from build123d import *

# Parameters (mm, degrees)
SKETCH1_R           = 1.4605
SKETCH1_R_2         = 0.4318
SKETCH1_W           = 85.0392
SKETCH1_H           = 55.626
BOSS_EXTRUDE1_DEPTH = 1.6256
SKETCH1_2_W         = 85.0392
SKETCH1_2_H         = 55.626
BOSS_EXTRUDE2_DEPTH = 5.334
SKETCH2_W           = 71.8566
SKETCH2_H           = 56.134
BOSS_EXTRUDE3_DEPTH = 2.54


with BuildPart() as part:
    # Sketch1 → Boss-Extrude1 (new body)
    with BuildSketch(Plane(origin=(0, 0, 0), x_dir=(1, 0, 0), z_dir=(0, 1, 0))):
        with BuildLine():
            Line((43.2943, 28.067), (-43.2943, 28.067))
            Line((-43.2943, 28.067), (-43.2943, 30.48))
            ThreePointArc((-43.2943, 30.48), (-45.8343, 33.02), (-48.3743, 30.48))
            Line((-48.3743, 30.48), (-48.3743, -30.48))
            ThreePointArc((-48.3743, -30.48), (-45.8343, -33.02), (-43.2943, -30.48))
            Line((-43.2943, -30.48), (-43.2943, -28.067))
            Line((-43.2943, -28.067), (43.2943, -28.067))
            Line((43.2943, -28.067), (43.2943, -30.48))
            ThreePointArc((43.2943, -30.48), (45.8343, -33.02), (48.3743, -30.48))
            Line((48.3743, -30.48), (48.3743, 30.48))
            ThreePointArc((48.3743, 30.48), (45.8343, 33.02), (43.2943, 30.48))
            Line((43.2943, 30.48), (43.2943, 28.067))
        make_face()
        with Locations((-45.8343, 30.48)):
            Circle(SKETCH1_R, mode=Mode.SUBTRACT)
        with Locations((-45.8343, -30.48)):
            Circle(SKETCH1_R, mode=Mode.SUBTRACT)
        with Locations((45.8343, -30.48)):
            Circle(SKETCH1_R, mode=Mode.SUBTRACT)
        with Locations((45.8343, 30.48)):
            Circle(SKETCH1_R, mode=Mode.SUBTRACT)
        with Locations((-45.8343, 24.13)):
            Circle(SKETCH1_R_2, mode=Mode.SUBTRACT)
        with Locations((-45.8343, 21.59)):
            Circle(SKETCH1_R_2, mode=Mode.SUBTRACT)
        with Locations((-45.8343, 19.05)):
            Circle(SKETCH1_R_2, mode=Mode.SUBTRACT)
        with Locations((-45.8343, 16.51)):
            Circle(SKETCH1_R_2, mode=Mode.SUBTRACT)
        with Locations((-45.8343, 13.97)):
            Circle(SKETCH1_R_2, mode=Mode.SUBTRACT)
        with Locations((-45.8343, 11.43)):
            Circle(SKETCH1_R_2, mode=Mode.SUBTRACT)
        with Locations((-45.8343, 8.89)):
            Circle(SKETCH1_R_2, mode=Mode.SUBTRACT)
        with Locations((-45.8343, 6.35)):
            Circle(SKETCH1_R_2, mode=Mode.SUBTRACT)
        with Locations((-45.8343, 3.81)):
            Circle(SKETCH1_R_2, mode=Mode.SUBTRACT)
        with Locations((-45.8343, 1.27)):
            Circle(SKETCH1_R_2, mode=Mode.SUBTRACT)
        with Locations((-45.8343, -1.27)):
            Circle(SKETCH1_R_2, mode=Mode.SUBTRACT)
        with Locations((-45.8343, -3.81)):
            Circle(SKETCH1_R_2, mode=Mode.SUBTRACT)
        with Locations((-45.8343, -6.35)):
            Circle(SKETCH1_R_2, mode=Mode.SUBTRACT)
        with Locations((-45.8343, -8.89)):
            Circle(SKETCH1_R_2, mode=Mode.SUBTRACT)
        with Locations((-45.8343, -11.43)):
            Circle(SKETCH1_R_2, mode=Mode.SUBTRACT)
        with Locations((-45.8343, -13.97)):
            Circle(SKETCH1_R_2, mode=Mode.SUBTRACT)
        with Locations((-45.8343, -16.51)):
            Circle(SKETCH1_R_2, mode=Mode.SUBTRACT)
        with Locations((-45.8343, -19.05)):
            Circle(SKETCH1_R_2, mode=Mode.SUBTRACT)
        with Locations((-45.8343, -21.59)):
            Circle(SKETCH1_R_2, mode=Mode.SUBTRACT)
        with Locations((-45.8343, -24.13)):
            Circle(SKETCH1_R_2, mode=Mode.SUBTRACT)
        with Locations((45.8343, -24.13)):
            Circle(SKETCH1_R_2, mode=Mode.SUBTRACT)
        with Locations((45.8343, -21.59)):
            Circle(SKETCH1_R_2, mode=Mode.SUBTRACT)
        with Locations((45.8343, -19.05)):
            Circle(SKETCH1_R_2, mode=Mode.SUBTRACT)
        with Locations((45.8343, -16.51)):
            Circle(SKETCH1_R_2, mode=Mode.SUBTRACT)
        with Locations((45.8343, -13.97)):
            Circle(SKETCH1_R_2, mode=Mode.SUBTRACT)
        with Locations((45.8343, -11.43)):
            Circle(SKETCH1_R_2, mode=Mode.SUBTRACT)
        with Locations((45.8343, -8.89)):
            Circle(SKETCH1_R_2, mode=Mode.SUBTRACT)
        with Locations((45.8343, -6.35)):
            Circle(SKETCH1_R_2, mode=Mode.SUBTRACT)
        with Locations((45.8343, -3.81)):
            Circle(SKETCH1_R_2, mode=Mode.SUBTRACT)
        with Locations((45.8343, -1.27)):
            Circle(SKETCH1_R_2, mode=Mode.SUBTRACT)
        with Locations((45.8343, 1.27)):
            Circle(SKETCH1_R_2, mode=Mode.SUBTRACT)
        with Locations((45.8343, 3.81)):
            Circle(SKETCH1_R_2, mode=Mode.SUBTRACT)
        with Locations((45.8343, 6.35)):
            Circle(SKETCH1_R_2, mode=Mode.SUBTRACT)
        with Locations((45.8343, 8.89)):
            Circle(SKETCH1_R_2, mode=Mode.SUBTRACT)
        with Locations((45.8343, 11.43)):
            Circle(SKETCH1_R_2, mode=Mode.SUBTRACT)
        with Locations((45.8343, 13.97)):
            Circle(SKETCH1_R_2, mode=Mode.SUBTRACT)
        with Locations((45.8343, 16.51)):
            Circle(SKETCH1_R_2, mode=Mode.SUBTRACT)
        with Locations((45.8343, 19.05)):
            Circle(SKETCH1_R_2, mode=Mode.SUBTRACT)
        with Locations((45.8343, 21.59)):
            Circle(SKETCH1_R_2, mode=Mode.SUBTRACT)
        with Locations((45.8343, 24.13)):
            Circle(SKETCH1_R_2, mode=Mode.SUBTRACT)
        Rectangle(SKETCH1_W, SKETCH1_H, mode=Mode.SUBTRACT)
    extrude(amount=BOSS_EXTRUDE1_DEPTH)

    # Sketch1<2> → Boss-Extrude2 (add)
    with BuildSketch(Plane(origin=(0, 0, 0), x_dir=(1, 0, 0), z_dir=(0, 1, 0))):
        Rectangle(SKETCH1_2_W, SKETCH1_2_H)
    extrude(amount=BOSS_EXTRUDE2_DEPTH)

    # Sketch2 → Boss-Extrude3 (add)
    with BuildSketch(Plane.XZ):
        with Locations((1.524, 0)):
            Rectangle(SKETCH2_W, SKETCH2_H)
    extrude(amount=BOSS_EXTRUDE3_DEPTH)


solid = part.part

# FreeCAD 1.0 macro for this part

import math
import FreeCAD as App
import Part
import Sketcher
Q = App.Units.Quantity

doc = App.newDocument("Part")
body = doc.addObject("PartDesign::Body", "Body")

# Sketch on XZ plane
sketch1 = body.newObject("Sketcher::SketchObject", "Sketch")
sketch1.AttachmentSupport = (doc.getObject("XZ_Plane"), [""])
sketch1.MapMode = "FlatFace"
sketch1.addGeometry(Part.LineSegment(App.Vector(43.29, -28.07, 0), App.Vector(-43.29, -28.07, 0)), False)
sketch1.addGeometry(Part.LineSegment(App.Vector(-43.29, -28.07, 0), App.Vector(-43.29, -30.48, 0)), False)
sketch1.addGeometry(Part.ArcOfCircle(Part.Circle(App.Vector(-45.83, -30.48, 0), App.Vector(0, 0, 1), 2.54), math.radians(180), math.radians(360)), False)
sketch1.addGeometry(Part.LineSegment(App.Vector(-48.37, -30.48, 0), App.Vector(-48.37, 30.48, 0)), False)
sketch1.addGeometry(Part.ArcOfCircle(Part.Circle(App.Vector(-45.83, 30.48, 0), App.Vector(0, 0, 1), 2.54), math.radians(0), math.radians(180)), False)
sketch1.addGeometry(Part.LineSegment(App.Vector(-43.29, 30.48, 0), App.Vector(-43.29, 28.07, 0)), False)
sketch1.addGeometry(Part.LineSegment(App.Vector(-43.29, 28.07, 0), App.Vector(43.29, 28.07, 0)), False)
sketch1.addGeometry(Part.LineSegment(App.Vector(43.29, 28.07, 0), App.Vector(43.29, 30.48, 0)), False)
sketch1.addGeometry(Part.ArcOfCircle(Part.Circle(App.Vector(45.83, 30.48, 0), App.Vector(0, 0, 1), 2.54), math.radians(0), math.radians(180)), False)
sketch1.addGeometry(Part.LineSegment(App.Vector(48.37, 30.48, 0), App.Vector(48.37, -30.48, 0)), False)
sketch1.addGeometry(Part.ArcOfCircle(Part.Circle(App.Vector(45.83, -30.48, 0), App.Vector(0, 0, 1), 2.54), math.radians(180), math.radians(360)), False)
sketch1.addGeometry(Part.LineSegment(App.Vector(43.29, -30.48, 0), App.Vector(43.29, -28.07, 0)), False)
sketch1.addGeometry(Part.Circle(App.Vector(-45.83, 30.48, 0), App.Vector(0, 0, 1), 1.46), False)
sketch1.addGeometry(Part.Circle(App.Vector(-45.83, 24.13, 0), App.Vector(0, 0, 1), 0.43), False)
sketch1.addGeometry(Part.Circle(App.Vector(-45.83, 21.59, 0), App.Vector(0, 0, 1), 0.43), False)
sketch1.addGeometry(Part.Circle(App.Vector(-45.83, 19.05, 0), App.Vector(0, 0, 1), 0.43), False)
sketch1.addGeometry(Part.Circle(App.Vector(-45.83, 16.51, 0), App.Vector(0, 0, 1), 0.43), False)
sketch1.addGeometry(Part.Circle(App.Vector(-45.83, 13.97, 0), App.Vector(0, 0, 1), 0.43), False)
sketch1.addGeometry(Part.Circle(App.Vector(-45.83, 11.43, 0), App.Vector(0, 0, 1), 0.43), False)
sketch1.addGeometry(Part.Circle(App.Vector(-45.83, 8.89, 0), App.Vector(0, 0, 1), 0.43), False)
sketch1.addGeometry(Part.Circle(App.Vector(-45.83, 6.35, 0), App.Vector(0, 0, 1), 0.43), False)
sketch1.addGeometry(Part.Circle(App.Vector(-45.83, 3.81, 0), App.Vector(0, 0, 1), 0.43), False)
sketch1.addGeometry(Part.Circle(App.Vector(-45.83, 1.27, 0), App.Vector(0, 0, 1), 0.43), False)
sketch1.addGeometry(Part.Circle(App.Vector(45.83, 30.48, 0), App.Vector(0, 0, 1), 1.46), False)
sketch1.addGeometry(Part.Circle(App.Vector(45.83, 24.13, 0), App.Vector(0, 0, 1), 0.43), False)
sketch1.addGeometry(Part.Circle(App.Vector(45.83, 21.59, 0), App.Vector(0, 0, 1), 0.43), False)
sketch1.addGeometry(Part.Circle(App.Vector(45.83, 19.05, 0), App.Vector(0, 0, 1), 0.43), False)
sketch1.addGeometry(Part.Circle(App.Vector(45.83, 16.51, 0), App.Vector(0, 0, 1), 0.43), False)
sketch1.addGeometry(Part.LineSegment(App.Vector(42.52, 27.81, 0), App.Vector(-42.52, 27.81, 0)), False)
sketch1.addGeometry(Part.LineSegment(App.Vector(-42.52, 27.81, 0), App.Vector(-42.52, -27.81, 0)), False)
sketch1.addGeometry(Part.LineSegment(App.Vector(-42.52, -27.81, 0), App.Vector(42.52, -27.81, 0)), False)
sketch1.addGeometry(Part.LineSegment(App.Vector(42.52, -27.81, 0), App.Vector(42.52, 27.81, 0)), False)
sketch1.addGeometry(Part.Circle(App.Vector(45.83, 13.97, 0), App.Vector(0, 0, 1), 0.43), False)
sketch1.addGeometry(Part.Circle(App.Vector(45.83, 11.43, 0), App.Vector(0, 0, 1), 0.43), False)
sketch1.addGeometry(Part.Circle(App.Vector(45.83, 8.89, 0), App.Vector(0, 0, 1), 0.43), False)
sketch1.addGeometry(Part.Circle(App.Vector(45.83, 6.35, 0), App.Vector(0, 0, 1), 0.43), False)
sketch1.addGeometry(Part.Circle(App.Vector(45.83, 3.81, 0), App.Vector(0, 0, 1), 0.43), False)
sketch1.addGeometry(Part.Circle(App.Vector(45.83, 1.27, 0), App.Vector(0, 0, 1), 0.43), False)
sketch1.addGeometry(Part.Circle(App.Vector(-45.83, -1.27, 0), App.Vector(0, 0, 1), 0.43), False)
sketch1.addGeometry(Part.Circle(App.Vector(-45.83, -3.81, 0), App.Vector(0, 0, 1), 0.43), False)
sketch1.addGeometry(Part.Circle(App.Vector(-45.83, -6.35, 0), App.Vector(0, 0, 1), 0.43), False)
sketch1.addGeometry(Part.Circle(App.Vector(-45.83, -8.89, 0), App.Vector(0, 0, 1), 0.43), False)
sketch1.addGeometry(Part.Circle(App.Vector(-45.83, -11.43, 0), App.Vector(0, 0, 1), 0.43), False)
sketch1.addGeometry(Part.Circle(App.Vector(-45.83, -13.97, 0), App.Vector(0, 0, 1), 0.43), False)
sketch1.addGeometry(Part.Circle(App.Vector(-45.83, -16.51, 0), App.Vector(0, 0, 1), 0.43), False)
sketch1.addGeometry(Part.Circle(App.Vector(-45.83, -19.05, 0), App.Vector(0, 0, 1), 0.43), False)
sketch1.addGeometry(Part.Circle(App.Vector(-45.83, -21.59, 0), App.Vector(0, 0, 1), 0.43), False)
sketch1.addGeometry(Part.Circle(App.Vector(-45.83, -24.13, 0), App.Vector(0, 0, 1), 0.43), False)
sketch1.addGeometry(Part.Circle(App.Vector(-45.83, -30.48, 0), App.Vector(0, 0, 1), 1.46), False)
sketch1.addGeometry(Part.Circle(App.Vector(45.83, -1.27, 0), App.Vector(0, 0, 1), 0.43), False)
sketch1.addGeometry(Part.Circle(App.Vector(45.83, -3.81, 0), App.Vector(0, 0, 1), 0.43), False)
sketch1.addGeometry(Part.Circle(App.Vector(45.83, -6.35, 0), App.Vector(0, 0, 1), 0.43), False)
sketch1.addGeometry(Part.Circle(App.Vector(45.83, -8.89, 0), App.Vector(0, 0, 1), 0.43), False)
sketch1.addGeometry(Part.Circle(App.Vector(45.83, -11.43, 0), App.Vector(0, 0, 1), 0.43), False)
sketch1.addGeometry(Part.Circle(App.Vector(45.83, -13.97, 0), App.Vector(0, 0, 1), 0.43), False)
sketch1.addGeometry(Part.Circle(App.Vector(45.83, -16.51, 0), App.Vector(0, 0, 1), 0.43), False)
sketch1.addGeometry(Part.Circle(App.Vector(45.83, -19.05, 0), App.Vector(0, 0, 1), 0.43), False)
sketch1.addGeometry(Part.Circle(App.Vector(45.83, -21.59, 0), App.Vector(0, 0, 1), 0.43), False)
sketch1.addGeometry(Part.Circle(App.Vector(45.83, -24.13, 0), App.Vector(0, 0, 1), 0.43), False)
sketch1.addGeometry(Part.Circle(App.Vector(45.83, -30.48, 0), App.Vector(0, 0, 1), 1.46), False)
sketch1.addConstraint(Sketcher.Constraint("Coincident", 0, 2, 1, 1))
sketch1.addConstraint(Sketcher.Constraint("Tangent", 1, 2, 2, 2))
sketch1.addConstraint(Sketcher.Constraint("Tangent", 2, 1, 3, 1))
sketch1.addConstraint(Sketcher.Constraint("Tangent", 3, 2, 4, 2))
sketch1.addConstraint(Sketcher.Constraint("Tangent", 4, 1, 5, 1))
sketch1.addConstraint(Sketcher.Constraint("Coincident", 5, 2, 6, 1))
sketch1.addConstraint(Sketcher.Constraint("Coincident", 6, 2, 7, 1))
sketch1.addConstraint(Sketcher.Constraint("Tangent", 7, 2, 8, 2))
sketch1.addConstraint(Sketcher.Constraint("Tangent", 8, 1, 9, 1))
sketch1.addConstraint(Sketcher.Constraint("Tangent", 9, 2, 10, 2))
sketch1.addConstraint(Sketcher.Constraint("Tangent", 10, 1, 11, 1))
sketch1.addConstraint(Sketcher.Constraint("Coincident", 11, 2, 0, 1))
sketch1.addConstraint(Sketcher.Constraint("Coincident", 28, 2, 29, 1))
sketch1.addConstraint(Sketcher.Constraint("Coincident", 29, 2, 30, 1))
sketch1.addConstraint(Sketcher.Constraint("Coincident", 30, 2, 31, 1))
sketch1.addConstraint(Sketcher.Constraint("Coincident", 31, 2, 28, 1))
sketch1.addConstraint(Sketcher.Constraint("Horizontal", 0))
sketch1.addConstraint(Sketcher.Constraint("Vertical", 1))
sketch1.addConstraint(Sketcher.Constraint("Vertical", 3))
sketch1.addConstraint(Sketcher.Constraint("Vertical", 5))
sketch1.addConstraint(Sketcher.Constraint("Horizontal", 6))
sketch1.addConstraint(Sketcher.Constraint("Vertical", 7))
sketch1.addConstraint(Sketcher.Constraint("Vertical", 9))
sketch1.addConstraint(Sketcher.Constraint("Vertical", 11))
sketch1.addConstraint(Sketcher.Constraint("Horizontal", 28))
sketch1.addConstraint(Sketcher.Constraint("Vertical", 29))
sketch1.addConstraint(Sketcher.Constraint("Horizontal", 30))
sketch1.addConstraint(Sketcher.Constraint("Vertical", 31))
sketch1.addConstraint(Sketcher.Constraint("Coincident", 12, 3, 4, 3))
sketch1.addConstraint(Sketcher.Constraint("Coincident", 23, 3, 8, 3))
sketch1.addConstraint(Sketcher.Constraint("Coincident", 48, 3, 2, 3))
sketch1.addConstraint(Sketcher.Constraint("Coincident", 59, 3, 10, 3))
sketch1.addConstraint(Sketcher.Constraint("Equal", 2, 4))
sketch1.addConstraint(Sketcher.Constraint("Equal", 4, 8))
sketch1.addConstraint(Sketcher.Constraint("Equal", 8, 10))
sketch1.addConstraint(Sketcher.Constraint("Equal", 13, 14))
sketch1.addConstraint(Sketcher.Constraint("Equal", 14, 15))
sketch1.addConstraint(Sketcher.Constraint("Equal", 15, 16))
sketch1.addConstraint(Sketcher.Constraint("Equal", 16, 17))
sketch1.addConstraint(Sketcher.Constraint("Equal", 17, 18))
sketch1.addConstraint(Sketcher.Constraint("Equal", 18, 19))
sketch1.addConstraint(Sketcher.Constraint("Equal", 19, 20))
sketch1.addConstraint(Sketcher.Constraint("Equal", 20, 21))
sketch1.addConstraint(Sketcher.Constraint("Equal", 21, 22))
sketch1.addConstraint(Sketcher.Constraint("Equal", 12, 23))
sketch1.addConstraint(Sketcher.Constraint("Equal", 22, 24))
sketch1.addConstraint(Sketcher.Constraint("Equal", 24, 25))
sketch1.addConstraint(Sketcher.Constraint("Equal", 25, 26))
sketch1.addConstraint(Sketcher.Constraint("Equal", 26, 27))
sketch1.addConstraint(Sketcher.Constraint("Equal", 27, 32))
sketch1.addConstraint(Sketcher.Constraint("Equal", 32, 33))
sketch1.addConstraint(Sketcher.Constraint("Equal", 33, 34))
sketch1.addConstraint(Sketcher.Constraint("Equal", 34, 35))
sketch1.addConstraint(Sketcher.Constraint("Equal", 35, 36))
sketch1.addConstraint(Sketcher.Constraint("Equal", 36, 37))
sketch1.addConstraint(Sketcher.Constraint("Equal", 37, 38))
sketch1.addConstraint(Sketcher.Constraint("Equal", 38, 39))
sketch1.addConstraint(Sketcher.Constraint("Equal", 39, 40))
sketch1.addConstraint(Sketcher.Constraint("Equal", 40, 41))
sketch1.addConstraint(Sketcher.Constraint("Equal", 41, 42))
sketch1.addConstraint(Sketcher.Constraint("Equal", 42, 43))
sketch1.addConstraint(Sketcher.Constraint("Equal", 43, 44))
sketch1.addConstraint(Sketcher.Constraint("Equal", 44, 45))
sketch1.addConstraint(Sketcher.Constraint("Equal", 45, 46))
sketch1.addConstraint(Sketcher.Constraint("Equal", 46, 47))
sketch1.addConstraint(Sketcher.Constraint("Equal", 23, 48))
sketch1.addConstraint(Sketcher.Constraint("Equal", 47, 49))
sketch1.addConstraint(Sketcher.Constraint("Equal", 49, 50))
sketch1.addConstraint(Sketcher.Constraint("Equal", 50, 51))
sketch1.addConstraint(Sketcher.Constraint("Equal", 51, 52))
sketch1.addConstraint(Sketcher.Constraint("Equal", 52, 53))
sketch1.addConstraint(Sketcher.Constraint("Equal", 53, 54))
sketch1.addConstraint(Sketcher.Constraint("Equal", 54, 55))
sketch1.addConstraint(Sketcher.Constraint("Equal", 55, 56))
sketch1.addConstraint(Sketcher.Constraint("Equal", 56, 57))
sketch1.addConstraint(Sketcher.Constraint("Equal", 57, 58))
sketch1.addConstraint(Sketcher.Constraint("Equal", 48, 59))
sketch1.addConstraint(Sketcher.Constraint("Symmetric", 2, 3, 8, 3, -1, 1))
sketch1.addConstraint(Sketcher.Constraint("Symmetric", 37, 3, 38, 3, -1, 1))
sketch1.addConstraint(Sketcher.Constraint("Symmetric", 36, 3, 39, 3, -1, 1))
sketch1.addConstraint(Sketcher.Constraint("Symmetric", 35, 3, 40, 3, -1, 1))
sketch1.addConstraint(Sketcher.Constraint("Symmetric", 34, 3, 41, 3, -1, 1))
sketch1.addConstraint(Sketcher.Constraint("Symmetric", 33, 3, 42, 3, -1, 1))
sketch1.addConstraint(Sketcher.Constraint("Symmetric", 32, 3, 43, 3, -1, 1))
sketch1.addConstraint(Sketcher.Constraint("Symmetric", 27, 3, 44, 3, -1, 1))
sketch1.addConstraint(Sketcher.Constraint("Symmetric", 26, 3, 45, 3, -1, 1))
sketch1.addConstraint(Sketcher.Constraint("Symmetric", 25, 3, 46, 3, -1, 1))
sketch1.addConstraint(Sketcher.Constraint("Symmetric", 24, 3, 47, 3, -1, 1))
sketch1.addConstraint(Sketcher.Constraint("Symmetric", 22, 3, 49, 3, -1, 1))
sketch1.addConstraint(Sketcher.Constraint("Symmetric", 21, 3, 50, 3, -1, 1))
sketch1.addConstraint(Sketcher.Constraint("Symmetric", 20, 3, 51, 3, -1, 1))
sketch1.addConstraint(Sketcher.Constraint("Symmetric", 19, 3, 52, 3, -1, 1))
sketch1.addConstraint(Sketcher.Constraint("Symmetric", 18, 3, 53, 3, -1, 1))
sketch1.addConstraint(Sketcher.Constraint("Symmetric", 17, 3, 54, 3, -1, 1))
sketch1.addConstraint(Sketcher.Constraint("Symmetric", 16, 3, 55, 3, -1, 1))
sketch1.addConstraint(Sketcher.Constraint("Symmetric", 15, 3, 56, 3, -1, 1))
sketch1.addConstraint(Sketcher.Constraint("Symmetric", 14, 3, 57, 3, -1, 1))
sketch1.addConstraint(Sketcher.Constraint("Symmetric", 13, 3, 58, 3, -1, 1))
sketch1.addConstraint(Sketcher.Constraint("Symmetric", 28, 2, 30, 2, -1, 1))
sketch1.addConstraint(Sketcher.Constraint("Symmetric", 13, 3, 24, 3, -2))
sketch1.addConstraint(Sketcher.Constraint("Symmetric", 14, 3, 25, 3, -2))
sketch1.addConstraint(Sketcher.Constraint("Symmetric", 15, 3, 26, 3, -2))
sketch1.addConstraint(Sketcher.Constraint("Symmetric", 16, 3, 27, 3, -2))
sketch1.addConstraint(Sketcher.Constraint("Symmetric", 17, 3, 32, 3, -2))
sketch1.addConstraint(Sketcher.Constraint("Symmetric", 18, 3, 33, 3, -2))
sketch1.addConstraint(Sketcher.Constraint("Symmetric", 19, 3, 34, 3, -2))
sketch1.addConstraint(Sketcher.Constraint("Symmetric", 20, 3, 35, 3, -2))
sketch1.addConstraint(Sketcher.Constraint("Symmetric", 21, 3, 36, 3, -2))
sketch1.addConstraint(Sketcher.Constraint("Symmetric", 22, 3, 37, 3, -2))
sketch1.addConstraint(Sketcher.Constraint("Horizontal", 4, 3, 8, 3))
sketch1.addConstraint(Sketcher.Constraint("Horizontal", 2, 3, 10, 3))
sketch1.addConstraint(Sketcher.Constraint("Vertical", 12, 3, 13, 3))
sketch1.addConstraint(Sketcher.Constraint("Vertical", 13, 3, 14, 3))
sketch1.addConstraint(Sketcher.Constraint("Vertical", 14, 3, 15, 3))
sketch1.addConstraint(Sketcher.Constraint("Vertical", 15, 3, 16, 3))
sketch1.addConstraint(Sketcher.Constraint("Vertical", 16, 3, 17, 3))
sketch1.addConstraint(Sketcher.Constraint("Vertical", 17, 3, 18, 3))
sketch1.addConstraint(Sketcher.Constraint("Vertical", 18, 3, 19, 3))
sketch1.addConstraint(Sketcher.Constraint("Vertical", 19, 3, 20, 3))
sketch1.addConstraint(Sketcher.Constraint("Vertical", 20, 3, 21, 3))
sketch1.addConstraint(Sketcher.Constraint("Vertical", 21, 3, 22, 3))
sketch1.addConstraint(Sketcher.Constraint("Equal", 1, 5))
sketch1.addConstraint(Sketcher.Constraint("Radius", 2, Q("0.1 in")))
sketch1.addConstraint(Sketcher.Constraint("Diameter", 12, Q("0.115 in")))
sketch1.addConstraint(Sketcher.Constraint("Diameter", 13, Q("0.034 in")))
sketch1.addConstraint(Sketcher.Constraint("DistanceY", 3, 1, 3, 2, Q("2.4 in")))
sketch1.addConstraint(Sketcher.Constraint("DistanceY", 29, 2, 29, 1, Q("2.19 in")))
sketch1.addConstraint(Sketcher.Constraint("DistanceX", 0, 2, 0, 1, Q("3.409 in")))
sketch1.addConstraint(Sketcher.Constraint("DistanceX", 28, 2, 28, 1, Q("3.348 in")))
sketch1.addConstraint(Sketcher.Constraint("DistanceY", 1, 2, 1, 1, Q("0.095 in")))
sketch1.addConstraint(Sketcher.Constraint("DistanceY", -1, 1, 13, 3, Q("0.95 in")))
sketch1.addConstraint(Sketcher.Constraint("DistanceY", -1, 1, 14, 3, Q("0.85 in")))
sketch1.addConstraint(Sketcher.Constraint("DistanceY", -1, 1, 15, 3, Q("0.75 in")))
sketch1.addConstraint(Sketcher.Constraint("DistanceY", -1, 1, 16, 3, Q("0.65 in")))
sketch1.addConstraint(Sketcher.Constraint("DistanceY", -1, 1, 17, 3, Q("0.55 in")))
sketch1.addConstraint(Sketcher.Constraint("DistanceY", -1, 1, 18, 3, Q("0.45 in")))
sketch1.addConstraint(Sketcher.Constraint("DistanceY", -1, 1, 19, 3, Q("0.35 in")))
sketch1.addConstraint(Sketcher.Constraint("DistanceY", -1, 1, 20, 3, Q("0.25 in")))
sketch1.addConstraint(Sketcher.Constraint("DistanceY", -1, 1, 21, 3, Q("0.15 in")))
sketch1.addConstraint(Sketcher.Constraint("DistanceY", -1, 1, 22, 3, Q("0.05 in")))
pad1 = body.newObject("PartDesign::Pad", "Pad")
pad1.Profile = sketch1
pad1.Length = Q("0.064 in")
pad1.Reversed = True

# Sketch on XZ plane
sketch2 = body.newObject("Sketcher::SketchObject", "Sketch001")
sketch2.AttachmentSupport = (doc.getObject("XZ_Plane"), [""])
sketch2.MapMode = "FlatFace"
sketch2.addGeometry(Part.LineSegment(App.Vector(-43, -28, 0), App.Vector(-43, 28, 0)), False)
sketch2.addGeometry(Part.LineSegment(App.Vector(-43, 28, 0), App.Vector(43, 28, 0)), False)
sketch2.addGeometry(Part.LineSegment(App.Vector(43, 28, 0), App.Vector(43, -28, 0)), False)
sketch2.addGeometry(Part.LineSegment(App.Vector(43, -28, 0), App.Vector(-43, -28, 0)), False)
sketch2.addConstraint(Sketcher.Constraint("Coincident", 0, 2, 1, 1))
sketch2.addConstraint(Sketcher.Constraint("Coincident", 1, 2, 2, 1))
sketch2.addConstraint(Sketcher.Constraint("Coincident", 2, 2, 3, 1))
sketch2.addConstraint(Sketcher.Constraint("Coincident", 3, 2, 0, 1))
sketch2.addConstraint(Sketcher.Constraint("Vertical", 0))
sketch2.addConstraint(Sketcher.Constraint("Horizontal", 1))
sketch2.addConstraint(Sketcher.Constraint("Vertical", 2))
sketch2.addConstraint(Sketcher.Constraint("Horizontal", 3))
sketch2.addConstraint(Sketcher.Constraint("Symmetric", 0, 2, 2, 2, -1, 1))
sketch2.addConstraint(Sketcher.Constraint("DistanceY", 0, 1, 0, 2, Q("2.19 in")))
sketch2.addConstraint(Sketcher.Constraint("DistanceX", 1, 1, 1, 2, Q("3.348 in")))
pad2 = body.newObject("PartDesign::Pad", "Pad001")
pad2.Profile = sketch2
pad2.Length = Q("0.21 in")
pad2.Reversed = True

# Sketch on XZ plane
sketch3 = body.newObject("Sketcher::SketchObject", "Sketch002")
sketch3.AttachmentSupport = (doc.getObject("XZ_Plane"), [""])
sketch3.MapMode = "FlatFace"
sketch3.addGeometry(Part.LineSegment(App.Vector(-34, 28, 0), App.Vector(-34, -28, 0)), False)
sketch3.addGeometry(Part.LineSegment(App.Vector(-34, -28, 0), App.Vector(37, -28, 0)), False)
sketch3.addGeometry(Part.LineSegment(App.Vector(37, -28, 0), App.Vector(37, 28, 0)), False)
sketch3.addGeometry(Part.LineSegment(App.Vector(37, 28, 0), App.Vector(-34, 28, 0)), False)
sketch3.addConstraint(Sketcher.Constraint("Coincident", 0, 2, 1, 1))
sketch3.addConstraint(Sketcher.Constraint("Coincident", 1, 2, 2, 1))
sketch3.addConstraint(Sketcher.Constraint("Coincident", 2, 2, 3, 1))
sketch3.addConstraint(Sketcher.Constraint("Coincident", 3, 2, 0, 1))
sketch3.addConstraint(Sketcher.Constraint("Vertical", 0))
sketch3.addConstraint(Sketcher.Constraint("Horizontal", 1))
sketch3.addConstraint(Sketcher.Constraint("Vertical", 2))
sketch3.addConstraint(Sketcher.Constraint("Horizontal", 3))
sketch3.addConstraint(Sketcher.Constraint("DistanceY", 0, 2, 0, 1, Q("2.21 in")))
sketch3.addConstraint(Sketcher.Constraint("DistanceX", 1, 1, 1, 2, Q("2.829 in")))
sketch3.addConstraint(Sketcher.Constraint("DistanceY", 0, 2, -1, 1, Q("1.105 in")))
sketch3.addConstraint(Sketcher.Constraint("DistanceX", 0, 2, -1, 1, Q("1.3545 in")))
pad3 = body.newObject("PartDesign::Pad", "Pad002")
pad3.Profile = sketch3
pad3.Length = Q("0.1 in")

doc.recompute()
